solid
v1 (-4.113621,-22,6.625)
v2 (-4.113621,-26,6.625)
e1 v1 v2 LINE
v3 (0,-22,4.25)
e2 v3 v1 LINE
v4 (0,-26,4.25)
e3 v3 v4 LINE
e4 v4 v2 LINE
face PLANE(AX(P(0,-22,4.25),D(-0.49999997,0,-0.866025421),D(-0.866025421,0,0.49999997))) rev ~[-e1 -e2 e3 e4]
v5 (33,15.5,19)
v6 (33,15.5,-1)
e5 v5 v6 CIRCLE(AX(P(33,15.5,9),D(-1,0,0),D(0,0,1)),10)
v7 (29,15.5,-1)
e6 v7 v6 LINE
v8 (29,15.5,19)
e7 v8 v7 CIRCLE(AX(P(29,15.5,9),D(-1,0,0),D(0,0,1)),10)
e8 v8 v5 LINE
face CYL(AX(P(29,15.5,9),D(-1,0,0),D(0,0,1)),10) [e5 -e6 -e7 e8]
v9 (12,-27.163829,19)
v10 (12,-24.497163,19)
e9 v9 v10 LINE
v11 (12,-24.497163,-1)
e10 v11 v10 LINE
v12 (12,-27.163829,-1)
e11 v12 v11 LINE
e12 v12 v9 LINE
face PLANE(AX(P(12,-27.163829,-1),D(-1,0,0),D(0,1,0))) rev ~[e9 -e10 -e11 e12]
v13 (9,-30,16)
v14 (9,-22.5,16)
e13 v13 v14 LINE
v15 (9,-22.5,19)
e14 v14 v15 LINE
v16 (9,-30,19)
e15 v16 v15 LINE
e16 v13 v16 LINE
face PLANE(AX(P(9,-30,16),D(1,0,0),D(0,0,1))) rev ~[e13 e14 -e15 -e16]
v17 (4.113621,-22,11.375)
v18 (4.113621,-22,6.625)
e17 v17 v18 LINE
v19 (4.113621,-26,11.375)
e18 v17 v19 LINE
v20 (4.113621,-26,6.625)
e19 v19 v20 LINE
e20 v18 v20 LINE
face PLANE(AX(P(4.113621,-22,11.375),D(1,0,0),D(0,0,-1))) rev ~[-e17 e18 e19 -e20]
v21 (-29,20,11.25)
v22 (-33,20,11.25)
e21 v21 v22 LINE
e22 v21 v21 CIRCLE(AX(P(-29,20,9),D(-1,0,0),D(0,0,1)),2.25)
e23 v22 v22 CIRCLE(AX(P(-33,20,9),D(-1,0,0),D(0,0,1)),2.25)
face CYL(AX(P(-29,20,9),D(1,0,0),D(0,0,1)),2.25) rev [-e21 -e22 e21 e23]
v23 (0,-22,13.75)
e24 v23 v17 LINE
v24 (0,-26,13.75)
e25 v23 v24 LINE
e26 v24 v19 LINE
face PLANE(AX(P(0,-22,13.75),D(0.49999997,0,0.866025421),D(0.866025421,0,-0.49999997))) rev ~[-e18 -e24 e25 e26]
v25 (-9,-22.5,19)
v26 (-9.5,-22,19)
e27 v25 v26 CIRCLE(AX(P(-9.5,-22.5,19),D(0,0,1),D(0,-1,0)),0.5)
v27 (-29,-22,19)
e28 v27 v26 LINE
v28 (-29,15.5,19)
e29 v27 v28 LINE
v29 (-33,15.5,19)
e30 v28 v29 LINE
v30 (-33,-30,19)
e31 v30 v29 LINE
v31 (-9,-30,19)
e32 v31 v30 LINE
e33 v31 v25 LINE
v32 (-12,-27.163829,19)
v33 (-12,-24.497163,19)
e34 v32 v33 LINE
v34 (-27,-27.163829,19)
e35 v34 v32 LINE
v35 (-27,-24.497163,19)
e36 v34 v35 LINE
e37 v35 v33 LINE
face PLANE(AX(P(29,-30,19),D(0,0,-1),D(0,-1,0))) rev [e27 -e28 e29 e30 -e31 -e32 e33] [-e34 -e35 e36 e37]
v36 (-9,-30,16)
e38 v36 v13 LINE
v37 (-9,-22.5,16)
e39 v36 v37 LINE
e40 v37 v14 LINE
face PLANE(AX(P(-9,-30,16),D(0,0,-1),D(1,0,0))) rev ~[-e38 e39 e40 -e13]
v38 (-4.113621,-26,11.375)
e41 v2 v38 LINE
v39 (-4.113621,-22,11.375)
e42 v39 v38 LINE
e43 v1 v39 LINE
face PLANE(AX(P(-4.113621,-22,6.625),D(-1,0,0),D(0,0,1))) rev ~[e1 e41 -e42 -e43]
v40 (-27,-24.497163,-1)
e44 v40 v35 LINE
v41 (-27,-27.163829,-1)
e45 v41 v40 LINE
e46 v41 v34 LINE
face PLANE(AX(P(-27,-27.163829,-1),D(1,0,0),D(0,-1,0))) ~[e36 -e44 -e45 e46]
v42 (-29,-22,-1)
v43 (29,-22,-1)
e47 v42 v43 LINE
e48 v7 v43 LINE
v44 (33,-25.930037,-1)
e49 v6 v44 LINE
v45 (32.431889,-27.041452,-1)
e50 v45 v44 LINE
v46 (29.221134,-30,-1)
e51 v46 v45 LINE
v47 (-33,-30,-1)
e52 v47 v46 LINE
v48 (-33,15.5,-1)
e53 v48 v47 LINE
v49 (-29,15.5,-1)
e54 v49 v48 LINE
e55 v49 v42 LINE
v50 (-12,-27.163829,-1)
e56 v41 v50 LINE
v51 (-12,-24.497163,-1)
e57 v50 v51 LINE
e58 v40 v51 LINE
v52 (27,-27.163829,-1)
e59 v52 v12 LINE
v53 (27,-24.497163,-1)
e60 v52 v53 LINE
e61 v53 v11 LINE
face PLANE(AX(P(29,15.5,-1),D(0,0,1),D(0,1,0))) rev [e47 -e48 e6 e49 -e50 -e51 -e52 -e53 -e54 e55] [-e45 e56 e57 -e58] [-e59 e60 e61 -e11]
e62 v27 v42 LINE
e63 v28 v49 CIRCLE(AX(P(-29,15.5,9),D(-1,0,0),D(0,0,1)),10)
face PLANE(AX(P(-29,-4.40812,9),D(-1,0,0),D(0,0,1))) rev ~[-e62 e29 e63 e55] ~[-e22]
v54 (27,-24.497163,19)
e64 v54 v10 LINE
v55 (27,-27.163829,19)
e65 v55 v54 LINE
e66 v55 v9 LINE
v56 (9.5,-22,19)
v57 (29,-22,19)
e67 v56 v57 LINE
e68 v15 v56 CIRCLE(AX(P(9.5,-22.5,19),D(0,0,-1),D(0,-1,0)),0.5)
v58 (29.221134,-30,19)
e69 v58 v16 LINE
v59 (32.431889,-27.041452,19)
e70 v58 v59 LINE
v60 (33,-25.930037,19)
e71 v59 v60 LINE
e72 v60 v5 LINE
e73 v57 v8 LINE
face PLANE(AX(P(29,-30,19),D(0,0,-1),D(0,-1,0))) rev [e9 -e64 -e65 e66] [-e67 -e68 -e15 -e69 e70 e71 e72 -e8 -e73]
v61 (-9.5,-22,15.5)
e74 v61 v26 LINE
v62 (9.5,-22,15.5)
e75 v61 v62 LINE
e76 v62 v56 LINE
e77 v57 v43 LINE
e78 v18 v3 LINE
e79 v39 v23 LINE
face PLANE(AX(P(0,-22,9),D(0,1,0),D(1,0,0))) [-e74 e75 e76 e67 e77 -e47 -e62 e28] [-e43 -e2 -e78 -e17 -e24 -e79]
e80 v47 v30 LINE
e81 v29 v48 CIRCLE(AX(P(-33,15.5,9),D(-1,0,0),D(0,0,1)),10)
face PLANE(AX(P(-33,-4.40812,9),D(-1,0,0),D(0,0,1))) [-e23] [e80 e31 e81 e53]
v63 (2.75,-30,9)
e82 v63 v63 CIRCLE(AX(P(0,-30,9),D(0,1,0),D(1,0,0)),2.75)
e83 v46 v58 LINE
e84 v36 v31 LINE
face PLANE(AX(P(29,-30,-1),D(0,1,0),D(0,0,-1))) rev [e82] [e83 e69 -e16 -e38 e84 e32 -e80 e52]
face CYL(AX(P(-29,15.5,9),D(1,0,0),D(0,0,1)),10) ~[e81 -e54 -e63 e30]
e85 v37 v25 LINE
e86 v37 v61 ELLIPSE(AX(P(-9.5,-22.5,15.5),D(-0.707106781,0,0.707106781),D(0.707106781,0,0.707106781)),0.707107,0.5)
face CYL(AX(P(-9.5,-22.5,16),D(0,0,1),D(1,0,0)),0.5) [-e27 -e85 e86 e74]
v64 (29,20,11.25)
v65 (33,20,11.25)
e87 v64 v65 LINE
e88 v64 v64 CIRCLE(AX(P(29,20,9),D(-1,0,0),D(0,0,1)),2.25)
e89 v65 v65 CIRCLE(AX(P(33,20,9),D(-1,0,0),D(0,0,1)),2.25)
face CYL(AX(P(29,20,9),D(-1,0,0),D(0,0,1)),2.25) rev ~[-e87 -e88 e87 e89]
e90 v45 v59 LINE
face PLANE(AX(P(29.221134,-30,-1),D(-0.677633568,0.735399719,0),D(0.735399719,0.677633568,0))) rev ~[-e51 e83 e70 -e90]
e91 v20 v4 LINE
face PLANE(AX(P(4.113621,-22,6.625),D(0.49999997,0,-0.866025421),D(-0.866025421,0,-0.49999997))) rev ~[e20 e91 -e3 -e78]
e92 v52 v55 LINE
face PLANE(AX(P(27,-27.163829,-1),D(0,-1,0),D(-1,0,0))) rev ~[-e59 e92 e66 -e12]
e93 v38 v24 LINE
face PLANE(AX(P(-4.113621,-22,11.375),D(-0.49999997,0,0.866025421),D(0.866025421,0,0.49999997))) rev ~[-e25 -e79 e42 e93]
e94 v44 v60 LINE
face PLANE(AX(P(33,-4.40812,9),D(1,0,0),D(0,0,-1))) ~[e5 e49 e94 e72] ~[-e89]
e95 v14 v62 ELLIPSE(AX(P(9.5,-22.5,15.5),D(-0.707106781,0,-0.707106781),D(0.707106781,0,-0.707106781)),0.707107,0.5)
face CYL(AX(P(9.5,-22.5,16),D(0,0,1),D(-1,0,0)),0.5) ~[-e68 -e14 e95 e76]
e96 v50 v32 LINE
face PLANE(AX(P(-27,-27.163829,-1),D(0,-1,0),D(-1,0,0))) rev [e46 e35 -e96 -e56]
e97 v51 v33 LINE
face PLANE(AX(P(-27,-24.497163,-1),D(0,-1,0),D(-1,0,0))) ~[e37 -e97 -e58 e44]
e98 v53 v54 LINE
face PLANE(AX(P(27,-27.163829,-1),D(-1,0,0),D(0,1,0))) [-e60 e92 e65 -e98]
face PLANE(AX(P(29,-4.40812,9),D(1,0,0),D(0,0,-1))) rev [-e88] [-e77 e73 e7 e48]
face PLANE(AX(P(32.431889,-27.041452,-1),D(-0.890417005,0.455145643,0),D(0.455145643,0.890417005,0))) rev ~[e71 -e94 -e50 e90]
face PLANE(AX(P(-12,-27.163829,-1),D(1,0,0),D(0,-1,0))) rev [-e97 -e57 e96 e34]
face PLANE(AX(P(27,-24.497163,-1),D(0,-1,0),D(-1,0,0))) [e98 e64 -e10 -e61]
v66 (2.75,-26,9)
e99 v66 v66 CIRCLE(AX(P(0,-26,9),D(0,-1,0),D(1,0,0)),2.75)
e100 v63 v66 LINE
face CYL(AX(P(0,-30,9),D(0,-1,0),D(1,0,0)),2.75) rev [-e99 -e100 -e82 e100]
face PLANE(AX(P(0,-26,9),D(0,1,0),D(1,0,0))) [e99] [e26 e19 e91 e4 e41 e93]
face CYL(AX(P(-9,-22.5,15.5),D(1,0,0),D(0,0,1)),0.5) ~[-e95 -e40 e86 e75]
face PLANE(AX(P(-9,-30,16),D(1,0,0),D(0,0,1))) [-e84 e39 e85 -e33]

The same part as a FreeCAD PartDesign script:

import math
import FreeCAD as App
import Part
import Sketcher

V = App.Vector
Q = App.Units.Quantity


def edges_at(feature, points):
    """Names of the edges that pass closest to the given points."""
    edges = feature.Shape.Edges
    near = lambda p: min(range(len(edges)), key=lambda i: edges[i].distToShape(Part.Vertex(*p))[0])
    return sorted({f"Edge{near(p) + 1}" for p in points})


def add_polygon(sketch, points):
    """Adds a closed chain of lines whose ends are joined by coincident constraints."""
    first, n = sketch.GeometryCount, len(points)
    for a, b in zip(points, points[1:] + points[:1]):
        sketch.addGeometry(Part.LineSegment(App.Vector(*a, 0), App.Vector(*b, 0)), False)
    for i in range(n):
        sketch.addConstraint(Sketcher.Constraint("Coincident", first + i, 2, first + (i + 1) % n, 1))

doc = App.newDocument("Part")
body = doc.addObject("PartDesign::Body", "Body")

# Sketch on XZ plane
sketch1 = body.newObject("Sketcher::SketchObject", "Sketch")
sketch1.AttachmentSupport = (doc.getObject("XZ_Plane"), [""])
sketch1.MapMode = "FlatFace"
add_polygon(sketch1, [(-29, 10), (-29, -10), (29, -10), (29, 10)])  # lines 0-3
sketch1.addGeometry(Part.Circle(V(0, 0, 0), V(0, 0, 1), 2.8), False)  # 4
sketch1.addConstraint(Sketcher.Constraint("Vertical", 0))
sketch1.addConstraint(Sketcher.Constraint("Horizontal", 1))
sketch1.addConstraint(Sketcher.Constraint("Vertical", 2))
sketch1.addConstraint(Sketcher.Constraint("Horizontal", 3))
sketch1.addConstraint(Sketcher.Constraint("Coincident", 4, 3, -1, 1))
sketch1.addConstraint(Sketcher.Constraint("Symmetric", 0, 2, 2, 2, -1, 1))
sketch1.addConstraint(Sketcher.Constraint("Diameter", 4, 5.5))
sketch1.addConstraint(Sketcher.Constraint("DistanceX", 1, 1, 1, 2, 58.0))
sketch1.addConstraint(Sketcher.Constraint("DistanceY", 0, 2, 0, 1, 20.0))
pad1 = body.newObject("PartDesign::Pad", "Pad")
pad1.Profile = sketch1
pad1.Length = 8

# Sketch on YZ plane
sketch2 = body.newObject("Sketcher::SketchObject", "Sketch001")
sketch2.AttachmentSupport = (doc.getObject("YZ_Plane"), [""])
sketch2.MapMode = "FlatFace"
sketch2.AttachmentOffset = App.Placement(V(0, 0, -29), App.Rotation())
sketch2.addGeometry(Part.LineSegment(V(0, 10, 0), V(0, -10, 0)), False)
sketch2.addGeometry(Part.LineSegment(V(0, -10, 0), V(-45.5, -10, 0)), False)
sketch2.addGeometry(Part.ArcOfCircle(Part.Circle(V(-45.5, 0, 0), V(0, 0, 1), 10), math.radians(90), math.radians(270)), False)
sketch2.addGeometry(Part.LineSegment(V(-45.5, 10, 0), V(0, 10, 0)), False)
sketch2.addGeometry(Part.Circle(V(-50, 0, 0), V(0, 0, 1), 2.2), False)
sketch2.addConstraint(Sketcher.Constraint("Coincident", 0, 2, 1, 1))
sketch2.addConstraint(Sketcher.Constraint("Tangent", 1, 2, 2, 2))
sketch2.addConstraint(Sketcher.Constraint("Tangent", 2, 1, 3, 1))
sketch2.addConstraint(Sketcher.Constraint("Coincident", 3, 2, 0, 1))
sketch2.addConstraint(Sketcher.Constraint("Vertical", 0))
sketch2.addConstraint(Sketcher.Constraint("Horizontal", 1))
sketch2.addConstraint(Sketcher.Constraint("Horizontal", 3))
sketch2.addConstraint(Sketcher.Constraint("Symmetric", 0, 2, 3, 2, -1, 1))
sketch2.addConstraint(Sketcher.Constraint("PointOnObject", 4, 3, -1))
sketch2.addConstraint(Sketcher.Constraint("Radius", 2, 10.0))
sketch2.addConstraint(Sketcher.Constraint("Diameter", 4, 4.5))
sketch2.addConstraint(Sketcher.Constraint("DistanceX", 1, 2, 1, 1, 45.5))
sketch2.addConstraint(Sketcher.Constraint("DistanceX", 4, 3, -1, 1, 50.0))
pad2 = body.newObject("PartDesign::Pad", "Pad001")
pad2.Profile = sketch2
pad2.Length = 4
pad2.Reversed = True
doc.recompute()

mirrored = body.newObject("PartDesign::Mirrored", "Mirrored")
mirrored.Originals = [pad2]
mirrored.MirrorPlane = (doc.getObject("YZ_Plane"), [""])
body.Tip = mirrored

# Sketch on XZ plane
sketch3 = body.newObject("Sketcher::SketchObject", "Sketch002")
sketch3.AttachmentSupport = (doc.getObject("XZ_Plane"), [""])
sketch3.MapMode = "FlatFace"
sketch3.AttachmentOffset = App.Placement(V(0, 0, 8), App.Rotation())
add_polygon(sketch3, [(4.1, 2.4), (0, 4.8), (-4.1, 2.4), (-4.1, -2.4), (0, -4.8), (4.1, -2.4)])  # lines 0-5
sketch3.addConstraint(Sketcher.Constraint("Vertical", 2))
sketch3.addConstraint(Sketcher.Constraint("Vertical", 5))
sketch3.addConstraint(Sketcher.Constraint("Symmetric", 0, 2, 3, 2, -1, 1))
sketch3.addConstraint(Sketcher.Constraint("Symmetric", 1, 2, 4, 2, -1, 1))
sketch3.addConstraint(Sketcher.Constraint("PointOnObject", 0, 2, -2))
sketch3.addConstraint(Sketcher.Constraint("Parallel", 0, 3))
sketch3.addConstraint(Sketcher.Constraint("Horizontal", 2, 2, 4, 2))
sketch3.addConstraint(Sketcher.Constraint("Angle", 0, Q("150.000002 deg")))
sketch3.addConstraint(Sketcher.Constraint("DistanceY", 2, 2, 2, 1, 4.75))
sketch3.addConstraint(Sketcher.Constraint("DistanceY", 3, 2, 0, 2, 9.5))
pocket1 = body.newObject("PartDesign::Pocket", "Pocket")
pocket1.Profile = sketch3
pocket1.Length = 4

# Sketch on XY plane
sketch4 = body.newObject("Sketcher::SketchObject", "Sketch003")
sketch4.AttachmentSupport = (doc.getObject("XY_Plane"), [""])
sketch4.MapMode = "FlatFace"
sketch4.AttachmentOffset = App.Placement(V(0, 0, 10), App.Rotation())
add_polygon(sketch4, [(27, -5.5), (27, -2.8), (12, -2.8), (12, -5.5)])  # lines 0-3
sketch4.addConstraint(Sketcher.Constraint("Vertical", 0))
sketch4.addConstraint(Sketcher.Constraint("Horizontal", 1))
sketch4.addConstraint(Sketcher.Constraint("Vertical", 2))
sketch4.addConstraint(Sketcher.Constraint("Horizontal", 3))
sketch4.addConstraint(Sketcher.Constraint("DistanceX", 1, 2, 1, 1, 15.0))
sketch4.addConstraint(Sketcher.Constraint("DistanceX", -1, 1, 0, 2, 27.0))
sketch4.addConstraint(Sketcher.Constraint("DistanceY", 0, 1, 0, 2, 2.666667))
sketch4.addConstraint(Sketcher.Constraint("DistanceY", 0, 2, -1, 1, 2.836171))
pocket2 = body.newObject("PartDesign::Pocket", "Pocket001")
pocket2.Profile = sketch4
pocket2.Length = 20
doc.recompute()

mirrored2 = body.newObject("PartDesign::Mirrored", "Mirrored001")
mirrored2.Originals = [pocket2]
mirrored2.MirrorPlane = (doc.getObject("YZ_Plane"), [""])
body.Tip = mirrored2

# Sketch on XZ plane
sketch5 = body.newObject("Sketcher::SketchObject", "Sketch004")
sketch5.AttachmentSupport = (doc.getObject("XZ_Plane"), [""])
sketch5.MapMode = "FlatFace"
add_polygon(sketch5, [(-9, -10), (-9, -7), (9, -7), (9, -10)])  # lines 0-3
sketch5.addConstraint(Sketcher.Constraint("Vertical", 0))
sketch5.addConstraint(Sketcher.Constraint("Horizontal", 1))
sketch5.addConstraint(Sketcher.Constraint("Vertical", 2))
sketch5.addConstraint(Sketcher.Constraint("Horizontal", 3))
sketch5.addConstraint(Sketcher.Constraint("DistanceX", 1, 1, 1, 2, 18.0))
sketch5.addConstraint(Sketcher.Constraint("DistanceY", 0, 1, 0, 2, 3.0))
sketch5.addConstraint(Sketcher.Constraint("DistanceX", 0, 2, -1, 1, 9.0))
sketch5.addConstraint(Sketcher.Constraint("DistanceY", 0, 2, -1, 1, 7.0))
pocket3 = body.newObject("PartDesign::Pocket", "Pocket002")
pocket3.Profile = sketch5
pocket3.Length = 8
pocket3.Reversed = True
doc.recompute()

fillet = body.newObject("PartDesign::Fillet", "Fillet")
fillet.Base = (pocket3, edges_at(pocket3, [(0, -8, -7), (9, -8, -8.5), (-9, -8, -8.5)]))
fillet.Radius = 0.5

# Sketch on XY plane
sketch6 = body.newObject("Sketcher::SketchObject", "Sketch005")
sketch6.AttachmentSupport = (doc.getObject("XY_Plane"), [""])
sketch6.MapMode = "FlatFace"
sketch6.AttachmentOffset = App.Placement(V(0, 0, 10), App.Rotation())
add_polygon(sketch6, [(29.2, 0), (32.4, -3), (33, -4.1), (33, 0)])  # lines 0-3
sketch6.addConstraint(Sketcher.Constraint("Vertical", 2))
sketch6.addConstraint(Sketcher.Constraint("Horizontal", 3))
sketch6.addConstraint(Sketcher.Constraint("PointOnObject", 2, 2, -1))
sketch6.addConstraint(Sketcher.Constraint("DistanceX", -1, 1, 1, 2, 33.0))
sketch6.addConstraint(Sketcher.Constraint("Distance", 0, 4.366))
sketch6.addConstraint(Sketcher.Constraint("DistanceX", 3, 2, 3, 1, 3.778866))
sketch6.addConstraint(Sketcher.Constraint("DistanceY", 2, 1, 2, 2, 4.069963))
sketch6.addConstraint(Sketcher.Constraint("DistanceX", -1, 1, 0, 2, 32.431889))
pocket4 = body.newObject("PartDesign::Pocket", "Pocket003")
pocket4.Profile = sketch6
pocket4.Length = 20
body2 = doc.addObject("PartDesign::Body", "Body001")
doc.recompute()

body.Placement = App.Placement(V(0, -30, 9), App.Rotation(V(1, 0, 0), 180))
boolean = body2.newObject("PartDesign::Boolean", "Boolean")
boolean.Type = "Fuse"
boolean.addObjects([body])

doc.recompute()
